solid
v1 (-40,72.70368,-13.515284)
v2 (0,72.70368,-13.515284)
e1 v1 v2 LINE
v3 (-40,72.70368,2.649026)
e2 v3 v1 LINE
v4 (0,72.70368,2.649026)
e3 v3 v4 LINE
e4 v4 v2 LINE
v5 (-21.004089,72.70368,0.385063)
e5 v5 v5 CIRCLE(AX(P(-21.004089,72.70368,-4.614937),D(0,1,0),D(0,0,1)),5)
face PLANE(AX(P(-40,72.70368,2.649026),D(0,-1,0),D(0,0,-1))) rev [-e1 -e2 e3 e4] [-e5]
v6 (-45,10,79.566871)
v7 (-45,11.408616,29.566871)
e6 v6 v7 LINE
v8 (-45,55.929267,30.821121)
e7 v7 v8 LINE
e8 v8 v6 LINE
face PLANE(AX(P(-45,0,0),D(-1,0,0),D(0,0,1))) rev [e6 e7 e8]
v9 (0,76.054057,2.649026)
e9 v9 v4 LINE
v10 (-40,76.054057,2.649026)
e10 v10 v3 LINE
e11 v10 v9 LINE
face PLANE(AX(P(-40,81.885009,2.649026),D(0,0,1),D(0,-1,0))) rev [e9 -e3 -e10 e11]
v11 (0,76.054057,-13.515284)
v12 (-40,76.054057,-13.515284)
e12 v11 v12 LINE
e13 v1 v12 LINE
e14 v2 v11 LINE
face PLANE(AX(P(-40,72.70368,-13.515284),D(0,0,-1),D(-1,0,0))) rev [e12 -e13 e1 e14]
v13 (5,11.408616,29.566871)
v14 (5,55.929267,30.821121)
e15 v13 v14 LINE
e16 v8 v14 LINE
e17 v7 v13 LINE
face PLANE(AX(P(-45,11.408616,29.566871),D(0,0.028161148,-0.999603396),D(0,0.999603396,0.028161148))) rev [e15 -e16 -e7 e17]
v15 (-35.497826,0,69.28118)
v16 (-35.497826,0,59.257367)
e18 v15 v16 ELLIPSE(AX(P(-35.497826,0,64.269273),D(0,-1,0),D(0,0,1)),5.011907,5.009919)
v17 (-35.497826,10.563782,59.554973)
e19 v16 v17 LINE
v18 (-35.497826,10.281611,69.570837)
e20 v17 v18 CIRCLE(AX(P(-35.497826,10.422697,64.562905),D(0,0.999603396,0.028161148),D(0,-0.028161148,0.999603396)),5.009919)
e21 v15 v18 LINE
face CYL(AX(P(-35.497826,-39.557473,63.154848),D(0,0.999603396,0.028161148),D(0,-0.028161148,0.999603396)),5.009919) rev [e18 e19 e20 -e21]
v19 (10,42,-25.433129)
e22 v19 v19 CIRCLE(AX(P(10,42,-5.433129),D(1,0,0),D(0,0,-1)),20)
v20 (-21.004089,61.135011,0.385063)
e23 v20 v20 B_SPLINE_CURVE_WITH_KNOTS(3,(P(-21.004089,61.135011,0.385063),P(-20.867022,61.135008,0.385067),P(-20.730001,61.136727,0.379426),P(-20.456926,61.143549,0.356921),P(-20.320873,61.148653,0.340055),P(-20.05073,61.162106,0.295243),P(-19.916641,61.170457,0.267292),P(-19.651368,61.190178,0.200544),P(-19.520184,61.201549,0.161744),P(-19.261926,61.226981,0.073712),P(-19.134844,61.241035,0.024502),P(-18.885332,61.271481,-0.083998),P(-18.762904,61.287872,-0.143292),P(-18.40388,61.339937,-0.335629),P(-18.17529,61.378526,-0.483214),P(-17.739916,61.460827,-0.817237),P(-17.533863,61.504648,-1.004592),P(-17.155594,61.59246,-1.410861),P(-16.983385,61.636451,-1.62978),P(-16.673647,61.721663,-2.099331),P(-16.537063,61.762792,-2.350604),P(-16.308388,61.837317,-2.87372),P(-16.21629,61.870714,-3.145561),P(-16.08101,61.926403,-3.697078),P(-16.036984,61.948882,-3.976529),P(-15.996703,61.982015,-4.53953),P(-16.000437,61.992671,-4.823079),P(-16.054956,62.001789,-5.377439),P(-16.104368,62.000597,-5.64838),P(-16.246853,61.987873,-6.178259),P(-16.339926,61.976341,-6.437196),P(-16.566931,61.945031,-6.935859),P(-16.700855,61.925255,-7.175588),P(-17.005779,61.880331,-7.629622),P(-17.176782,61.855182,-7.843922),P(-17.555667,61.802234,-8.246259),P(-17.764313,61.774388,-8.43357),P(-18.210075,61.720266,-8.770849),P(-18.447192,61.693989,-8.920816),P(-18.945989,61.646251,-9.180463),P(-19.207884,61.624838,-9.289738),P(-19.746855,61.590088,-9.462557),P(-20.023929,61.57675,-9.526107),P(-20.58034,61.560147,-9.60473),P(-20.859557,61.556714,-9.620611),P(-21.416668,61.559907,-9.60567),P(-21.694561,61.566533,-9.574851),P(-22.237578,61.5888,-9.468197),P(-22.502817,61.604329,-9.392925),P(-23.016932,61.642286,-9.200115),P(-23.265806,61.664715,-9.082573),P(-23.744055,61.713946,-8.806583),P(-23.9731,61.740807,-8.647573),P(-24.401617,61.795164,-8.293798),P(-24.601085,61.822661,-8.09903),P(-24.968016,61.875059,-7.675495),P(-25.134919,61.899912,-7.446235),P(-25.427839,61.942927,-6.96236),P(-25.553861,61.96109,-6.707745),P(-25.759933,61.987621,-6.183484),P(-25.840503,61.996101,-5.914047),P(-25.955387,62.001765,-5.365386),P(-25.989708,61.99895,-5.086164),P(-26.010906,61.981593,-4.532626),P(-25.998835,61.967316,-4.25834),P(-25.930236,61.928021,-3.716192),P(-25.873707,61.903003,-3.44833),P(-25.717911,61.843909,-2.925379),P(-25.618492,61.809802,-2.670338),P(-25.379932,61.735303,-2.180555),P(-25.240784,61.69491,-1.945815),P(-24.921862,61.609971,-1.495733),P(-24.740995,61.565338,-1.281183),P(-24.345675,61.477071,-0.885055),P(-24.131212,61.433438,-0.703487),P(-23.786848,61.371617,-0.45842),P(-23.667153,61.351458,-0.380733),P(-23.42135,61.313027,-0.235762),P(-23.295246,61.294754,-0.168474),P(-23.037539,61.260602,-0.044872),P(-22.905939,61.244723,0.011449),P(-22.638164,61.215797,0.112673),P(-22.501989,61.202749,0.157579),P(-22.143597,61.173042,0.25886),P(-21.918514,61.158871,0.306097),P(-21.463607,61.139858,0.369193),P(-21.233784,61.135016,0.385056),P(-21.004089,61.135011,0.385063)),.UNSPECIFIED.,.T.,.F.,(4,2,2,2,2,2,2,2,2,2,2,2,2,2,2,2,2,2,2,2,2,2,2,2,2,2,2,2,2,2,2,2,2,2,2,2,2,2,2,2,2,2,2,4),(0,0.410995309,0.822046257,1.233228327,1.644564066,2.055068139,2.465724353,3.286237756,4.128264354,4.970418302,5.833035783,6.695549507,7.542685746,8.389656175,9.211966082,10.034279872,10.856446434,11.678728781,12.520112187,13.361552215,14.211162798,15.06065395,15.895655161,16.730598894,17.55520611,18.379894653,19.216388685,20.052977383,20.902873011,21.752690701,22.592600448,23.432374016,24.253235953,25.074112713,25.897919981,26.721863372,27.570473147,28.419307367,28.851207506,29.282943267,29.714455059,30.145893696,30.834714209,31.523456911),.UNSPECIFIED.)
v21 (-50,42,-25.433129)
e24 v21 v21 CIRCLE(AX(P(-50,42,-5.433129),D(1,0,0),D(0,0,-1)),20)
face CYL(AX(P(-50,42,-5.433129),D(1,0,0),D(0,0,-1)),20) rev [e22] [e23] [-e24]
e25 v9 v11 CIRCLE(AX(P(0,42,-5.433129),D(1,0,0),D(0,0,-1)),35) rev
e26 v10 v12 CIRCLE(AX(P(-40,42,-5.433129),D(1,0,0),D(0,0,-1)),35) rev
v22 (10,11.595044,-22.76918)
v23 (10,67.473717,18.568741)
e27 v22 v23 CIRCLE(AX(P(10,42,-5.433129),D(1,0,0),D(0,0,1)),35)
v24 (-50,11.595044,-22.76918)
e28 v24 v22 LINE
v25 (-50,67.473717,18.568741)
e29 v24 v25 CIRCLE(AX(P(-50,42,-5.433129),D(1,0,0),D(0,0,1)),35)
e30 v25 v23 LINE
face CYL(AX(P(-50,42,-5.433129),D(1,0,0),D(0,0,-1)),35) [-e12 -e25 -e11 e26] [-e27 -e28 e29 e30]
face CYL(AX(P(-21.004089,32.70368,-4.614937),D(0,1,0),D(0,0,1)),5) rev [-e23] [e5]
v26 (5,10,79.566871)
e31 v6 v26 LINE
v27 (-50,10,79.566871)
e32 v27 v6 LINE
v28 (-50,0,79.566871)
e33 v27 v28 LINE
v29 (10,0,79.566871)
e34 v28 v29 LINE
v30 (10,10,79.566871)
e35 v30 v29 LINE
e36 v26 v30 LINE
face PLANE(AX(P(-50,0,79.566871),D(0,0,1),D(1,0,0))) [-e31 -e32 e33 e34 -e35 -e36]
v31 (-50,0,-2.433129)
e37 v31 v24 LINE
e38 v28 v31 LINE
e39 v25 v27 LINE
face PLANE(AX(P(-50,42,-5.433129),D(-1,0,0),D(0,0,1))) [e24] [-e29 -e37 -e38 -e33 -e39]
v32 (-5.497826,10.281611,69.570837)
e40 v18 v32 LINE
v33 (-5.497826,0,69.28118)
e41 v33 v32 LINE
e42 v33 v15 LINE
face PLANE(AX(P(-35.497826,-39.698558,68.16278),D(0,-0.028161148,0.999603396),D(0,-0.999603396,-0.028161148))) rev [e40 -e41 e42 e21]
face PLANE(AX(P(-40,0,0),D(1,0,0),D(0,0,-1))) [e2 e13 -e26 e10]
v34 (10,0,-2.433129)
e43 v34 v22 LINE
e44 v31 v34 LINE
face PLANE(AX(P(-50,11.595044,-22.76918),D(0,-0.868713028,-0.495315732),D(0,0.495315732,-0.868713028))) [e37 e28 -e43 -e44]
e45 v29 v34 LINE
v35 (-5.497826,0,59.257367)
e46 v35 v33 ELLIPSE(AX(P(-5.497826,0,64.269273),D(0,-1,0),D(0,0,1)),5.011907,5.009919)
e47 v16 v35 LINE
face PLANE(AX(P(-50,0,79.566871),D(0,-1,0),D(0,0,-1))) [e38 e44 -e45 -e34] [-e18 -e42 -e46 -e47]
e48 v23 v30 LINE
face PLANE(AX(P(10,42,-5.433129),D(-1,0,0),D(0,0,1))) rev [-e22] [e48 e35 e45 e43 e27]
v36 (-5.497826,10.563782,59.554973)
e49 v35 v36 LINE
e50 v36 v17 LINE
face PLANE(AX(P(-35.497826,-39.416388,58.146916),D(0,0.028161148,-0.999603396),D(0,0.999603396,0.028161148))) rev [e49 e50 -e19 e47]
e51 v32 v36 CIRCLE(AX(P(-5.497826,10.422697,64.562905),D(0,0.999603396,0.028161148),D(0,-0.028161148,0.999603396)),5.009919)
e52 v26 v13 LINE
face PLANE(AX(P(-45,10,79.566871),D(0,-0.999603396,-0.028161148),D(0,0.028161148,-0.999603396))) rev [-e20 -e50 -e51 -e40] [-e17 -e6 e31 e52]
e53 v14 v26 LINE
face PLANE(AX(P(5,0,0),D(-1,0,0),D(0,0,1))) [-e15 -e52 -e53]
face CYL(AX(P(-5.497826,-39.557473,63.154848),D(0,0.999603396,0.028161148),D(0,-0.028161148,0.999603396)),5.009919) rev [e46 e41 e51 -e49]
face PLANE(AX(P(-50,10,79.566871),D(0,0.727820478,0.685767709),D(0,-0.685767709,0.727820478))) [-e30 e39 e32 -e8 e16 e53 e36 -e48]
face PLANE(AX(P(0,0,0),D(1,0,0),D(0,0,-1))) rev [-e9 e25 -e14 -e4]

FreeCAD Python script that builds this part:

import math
import FreeCAD as App
import Part
import Sketcher
Q = App.Units.Quantity

doc = App.newDocument("Part")
params = doc.addObject("Spreadsheet::Sheet", "Params")
for row, (alias, value) in enumerate([
    ("sketch1_diameter", "40 mm"),
    ("sketch1_radius", "35 mm"),
    ("sketch1_width", "10 mm"),
    ("sketch1_height", "82 mm"),
    ("pad1_length", "60 mm"),
    ("pocket1_length", "50 mm"),
    ("sketch3_width", "30 mm"),
    ("pocket2_length", "50 mm"),
    ("pocket3_length", "40 mm"),
    ("sketch5_diameter", "10 mm"),
    ("pocket4_length", "40 mm"),
], start=1):
    params.set(f"A{row}", alias)
    params.set(f"B{row}", "=" + value)
    params.setAlias(f"B{row}", alias)

body = doc.addObject("PartDesign::Body", "Body")

sketch1 = doc.addObject("Sketcher::SketchObject", "Sketch")
body.addObject(sketch1)
sketch1.AttachmentSupport = (doc.YZ_Plane, [""])
sketch1.MapMode = "FlatFace"
sketch1.addGeometry([
    Part.LineSegment(App.Vector(10, 80, 0), App.Vector(0, 80, 0)),
    Part.LineSegment(App.Vector(0, 80, 0), App.Vector(0, -2, 0)),
    Part.LineSegment(App.Vector(0, -2, 0), App.Vector(12, -23, 0)),
    Part.ArcOfCircle(Part.Circle(App.Vector(42, -5, 0), App.Vector(0, 0, 1), 35), math.radians(-150), math.radians(43)),
    Part.LineSegment(App.Vector(67, 19, 0), App.Vector(10, 80, 0)),
    Part.Circle(App.Vector(42, -5, 0), App.Vector(0, 0, 1), 20),
], False)
sketch1.addConstraint([
    Sketcher.Constraint("Coincident", 0, 2, 1, 1),
    Sketcher.Constraint("Coincident", 1, 2, 2, 1),
    Sketcher.Constraint("Tangent", 2, 2, 3, 1),
    Sketcher.Constraint("Tangent", 3, 2, 4, 1),
    Sketcher.Constraint("Coincident", 4, 2, 0, 1),
    Sketcher.Constraint("Horizontal", 0),
    Sketcher.Constraint("Vertical", 1),
    Sketcher.Constraint("Coincident", 5, 3, 3, 3),
    Sketcher.Constraint("PointOnObject", 0, 2, -2),
    Sketcher.Constraint("Diameter", 5, Q("40 mm")),
    Sketcher.Constraint("Radius", 3, Q("35 mm")),
    Sketcher.Constraint("DistanceX", 0, 2, 0, 1, Q("10 mm")),
    Sketcher.Constraint("DistanceY", 1, 2, 1, 1, Q("82 mm")),
    Sketcher.Constraint("DistanceX", -1, 1, 3, 3, Q("42 mm")),
    Sketcher.Constraint("DistanceY", 3, 3, 0, 2, Q("85 mm")),
    Sketcher.Constraint("DistanceY", 3, 3, -1, 1, Q("5.433129 mm")),
])
sketch1.setExpression("Constraints[9]", "Params.sketch1_diameter")
sketch1.setExpression("Constraints[10]", "Params.sketch1_radius")
sketch1.setExpression("Constraints[11]", "Params.sketch1_width")
sketch1.setExpression("Constraints[12]", "Params.sketch1_height")
pad1 = doc.addObject("PartDesign::Pad", "Pad")
body.addObject(pad1)
pad1.Profile = sketch1
pad1.setExpression("Length", "Params.pad1_length")
pad1.Reversed = True
body2 = doc.addObject("PartDesign::Body", "Body001")
doc.recompute()

body.Placement = App.Placement(App.Vector(5, 0, 0), App.Rotation(App.Vector(0, 0, 1), 0))
boolean = doc.addObject("PartDesign::Boolean", "Boolean")
body2.addObject(boolean)
boolean.Type = "Fuse"
boolean.addObjects([body])

sketch2 = doc.addObject("Sketcher::SketchObject", "Sketch001")
body2.addObject(sketch2)
sketch2.AttachmentSupport = (doc.getObject("YZ_Plane001"), [""])
sketch2.MapMode = "FlatFace"
sketch2.addGeometry([
    Part.LineSegment(App.Vector(10, 79.566871, 0), App.Vector(11.408616, 29.566871, 0)),
    Part.LineSegment(App.Vector(11.408616, 29.566871, 0), App.Vector(55.929267, 30.821121, 0)),
    Part.LineSegment(App.Vector(55.929267, 30.821121, 0), App.Vector(10, 79.566871, 0)),
], False)
sketch2.addConstraint([
    Sketcher.Constraint("Coincident", 0, 2, 1, 1),
    Sketcher.Constraint("Coincident", 1, 2, 2, 1),
    Sketcher.Constraint("Coincident", 2, 2, 0, 1),
    Sketcher.Constraint("Perpendicular", 0, 1),
    Sketcher.Constraint("DistanceX", -1, 1, 2, 2, Q("10 mm")),
    Sketcher.Constraint("DistanceY", 0, 2, 2, 2, Q("50 mm")),
    Sketcher.Constraint("Distance", 0, Q("50.019838 mm")),
    Sketcher.Constraint("DistanceY", -1, 1, 0, 2, Q("29.566871 mm")),
    Sketcher.Constraint("DistanceY", -1, 1, 1, 2, Q("30.821121 mm")),
])
pocket1 = doc.addObject("PartDesign::Pocket", "Pocket")
body2.addObject(pocket1)
pocket1.Profile = sketch2
pocket1.setExpression("Length", "Params.pocket1_length")

sketch3 = doc.addObject("Sketcher::SketchObject", "Sketch002")
body2.addObject(sketch3)
sketch3.Placement = App.Placement(App.Vector(0, 12.231875, 0.3446), App.Rotation(App.Vector(1, 0, 0), App.Vector(0, 0.028161148, -0.999603396), App.Vector(0, 0.999603396, 0.028161148), "ZXY"))
sketch3.addGeometry([
    Part.LineSegment(App.Vector(-10, -59, 0), App.Vector(-40, -59, 0)),
    Part.ArcOfCircle(Part.Circle(App.Vector(-40, -64, 0), App.Vector(0, 0, 1), 5), math.radians(90), math.radians(270)),
    Part.LineSegment(App.Vector(-40, -69, 0), App.Vector(-10, -69, 0)),
    Part.ArcOfCircle(Part.Circle(App.Vector(-10, -64, 0), App.Vector(0, 0, 1), 5), math.radians(-90), math.radians(90)),
], False)
sketch3.addConstraint([
    Sketcher.Constraint("Tangent", 0, 2, 1, 1),
    Sketcher.Constraint("Tangent", 1, 2, 2, 1),
    Sketcher.Constraint("Tangent", 2, 2, 3, 1),
    Sketcher.Constraint("Tangent", 3, 2, 0, 1),
    Sketcher.Constraint("Horizontal", 0),
    Sketcher.Constraint("Horizontal", 2),
    Sketcher.Constraint("DistanceX", 0, 2, 0, 1, Q("30 mm")),
    Sketcher.Constraint("Radius", 1, Q("5.009919 mm")),
    Sketcher.Constraint("DistanceX", 1, 3, -1, 1, Q("40.497826 mm")),
    Sketcher.Constraint("DistanceY", 1, 3, -1, 1, Q("64.243784 mm")),
])
sketch3.setExpression("Constraints[6]", "Params.sketch3_width")
pocket2 = doc.addObject("PartDesign::Pocket", "Pocket001")
body2.addObject(pocket2)
pocket2.Profile = sketch3
pocket2.setExpression("Length", "Params.pocket2_length")
body3 = doc.addObject("PartDesign::Body", "Body002")
doc.recompute()

body2.Placement = App.Placement(App.Vector(5, 0, 0), App.Rotation(App.Vector(0, 0, 1), 0))
boolean2 = doc.addObject("PartDesign::Boolean", "Boolean001")
body3.addObject(boolean2)
boolean2.Type = "Fuse"
boolean2.addObjects([body2])

sketch4 = doc.addObject("Sketcher::SketchObject", "Sketch003")
body3.addObject(sketch4)
sketch4.AttachmentSupport = (doc.getObject("YZ_Plane002"), [""])
sketch4.MapMode = "FlatFace"
sketch4.addGeometry([
    Part.LineSegment(App.Vector(82, 3, 0), App.Vector(73, 3, 0)),
    Part.LineSegment(App.Vector(73, 3, 0), App.Vector(73, -14, 0)),
    Part.LineSegment(App.Vector(73, -14, 0), App.Vector(82, -14, 0)),
    Part.LineSegment(App.Vector(82, -14, 0), App.Vector(82, 3, 0)),
], False)
sketch4.addConstraint([
    Sketcher.Constraint("Coincident", 0, 2, 1, 1),
    Sketcher.Constraint("Coincident", 1, 2, 2, 1),
    Sketcher.Constraint("Coincident", 2, 2, 3, 1),
    Sketcher.Constraint("Coincident", 3, 2, 0, 1),
    Sketcher.Constraint("Horizontal", 0),
    Sketcher.Constraint("Vertical", 1),
    Sketcher.Constraint("Horizontal", 2),
    Sketcher.Constraint("Vertical", 3),
    Sketcher.Constraint("DistanceX", 0, 2, 0, 1, Q("9.181328 mm")),
    Sketcher.Constraint("DistanceY", 1, 2, 1, 1, Q("16.16431 mm")),
    Sketcher.Constraint("DistanceX", -1, 1, 0, 2, Q("72.70368 mm")),
    Sketcher.Constraint("DistanceY", -1, 1, 0, 2, Q("2.649026 mm")),
])
pocket3 = doc.addObject("PartDesign::Pocket", "Pocket002")
body3.addObject(pocket3)
pocket3.Profile = sketch4
pocket3.setExpression("Length", "Params.pocket3_length")

sketch5 = doc.addObject("Sketcher::SketchObject", "Sketch004")
body3.addObject(sketch5)
sketch5.AttachmentSupport = (doc.getObject("XZ_Plane002"), [""])
sketch5.MapMode = "FlatFace"
sketch5.AttachmentOffset = App.Placement(App.Vector(0, 0, -72.70368), App.Rotation())
sketch5.addGeometry(Part.Circle(App.Vector(-21, -5, 0), App.Vector(0, 0, 1), 5), False)
sketch5.addConstraint([
    Sketcher.Constraint("Diameter", 0, Q("10 mm")),
    Sketcher.Constraint("DistanceX", 0, 3, -1, 1, Q("21.004089 mm")),
    Sketcher.Constraint("DistanceY", 0, 3, -1, 1, Q("4.614937 mm")),
])
sketch5.setExpression("Constraints[0]", "Params.sketch5_diameter")
pocket4 = doc.addObject("PartDesign::Pocket", "Pocket003")
body3.addObject(pocket4)
pocket4.Profile = sketch5
pocket4.setExpression("Length", "Params.pocket4_length")
pocket4.Reversed = True

doc.recompute()
